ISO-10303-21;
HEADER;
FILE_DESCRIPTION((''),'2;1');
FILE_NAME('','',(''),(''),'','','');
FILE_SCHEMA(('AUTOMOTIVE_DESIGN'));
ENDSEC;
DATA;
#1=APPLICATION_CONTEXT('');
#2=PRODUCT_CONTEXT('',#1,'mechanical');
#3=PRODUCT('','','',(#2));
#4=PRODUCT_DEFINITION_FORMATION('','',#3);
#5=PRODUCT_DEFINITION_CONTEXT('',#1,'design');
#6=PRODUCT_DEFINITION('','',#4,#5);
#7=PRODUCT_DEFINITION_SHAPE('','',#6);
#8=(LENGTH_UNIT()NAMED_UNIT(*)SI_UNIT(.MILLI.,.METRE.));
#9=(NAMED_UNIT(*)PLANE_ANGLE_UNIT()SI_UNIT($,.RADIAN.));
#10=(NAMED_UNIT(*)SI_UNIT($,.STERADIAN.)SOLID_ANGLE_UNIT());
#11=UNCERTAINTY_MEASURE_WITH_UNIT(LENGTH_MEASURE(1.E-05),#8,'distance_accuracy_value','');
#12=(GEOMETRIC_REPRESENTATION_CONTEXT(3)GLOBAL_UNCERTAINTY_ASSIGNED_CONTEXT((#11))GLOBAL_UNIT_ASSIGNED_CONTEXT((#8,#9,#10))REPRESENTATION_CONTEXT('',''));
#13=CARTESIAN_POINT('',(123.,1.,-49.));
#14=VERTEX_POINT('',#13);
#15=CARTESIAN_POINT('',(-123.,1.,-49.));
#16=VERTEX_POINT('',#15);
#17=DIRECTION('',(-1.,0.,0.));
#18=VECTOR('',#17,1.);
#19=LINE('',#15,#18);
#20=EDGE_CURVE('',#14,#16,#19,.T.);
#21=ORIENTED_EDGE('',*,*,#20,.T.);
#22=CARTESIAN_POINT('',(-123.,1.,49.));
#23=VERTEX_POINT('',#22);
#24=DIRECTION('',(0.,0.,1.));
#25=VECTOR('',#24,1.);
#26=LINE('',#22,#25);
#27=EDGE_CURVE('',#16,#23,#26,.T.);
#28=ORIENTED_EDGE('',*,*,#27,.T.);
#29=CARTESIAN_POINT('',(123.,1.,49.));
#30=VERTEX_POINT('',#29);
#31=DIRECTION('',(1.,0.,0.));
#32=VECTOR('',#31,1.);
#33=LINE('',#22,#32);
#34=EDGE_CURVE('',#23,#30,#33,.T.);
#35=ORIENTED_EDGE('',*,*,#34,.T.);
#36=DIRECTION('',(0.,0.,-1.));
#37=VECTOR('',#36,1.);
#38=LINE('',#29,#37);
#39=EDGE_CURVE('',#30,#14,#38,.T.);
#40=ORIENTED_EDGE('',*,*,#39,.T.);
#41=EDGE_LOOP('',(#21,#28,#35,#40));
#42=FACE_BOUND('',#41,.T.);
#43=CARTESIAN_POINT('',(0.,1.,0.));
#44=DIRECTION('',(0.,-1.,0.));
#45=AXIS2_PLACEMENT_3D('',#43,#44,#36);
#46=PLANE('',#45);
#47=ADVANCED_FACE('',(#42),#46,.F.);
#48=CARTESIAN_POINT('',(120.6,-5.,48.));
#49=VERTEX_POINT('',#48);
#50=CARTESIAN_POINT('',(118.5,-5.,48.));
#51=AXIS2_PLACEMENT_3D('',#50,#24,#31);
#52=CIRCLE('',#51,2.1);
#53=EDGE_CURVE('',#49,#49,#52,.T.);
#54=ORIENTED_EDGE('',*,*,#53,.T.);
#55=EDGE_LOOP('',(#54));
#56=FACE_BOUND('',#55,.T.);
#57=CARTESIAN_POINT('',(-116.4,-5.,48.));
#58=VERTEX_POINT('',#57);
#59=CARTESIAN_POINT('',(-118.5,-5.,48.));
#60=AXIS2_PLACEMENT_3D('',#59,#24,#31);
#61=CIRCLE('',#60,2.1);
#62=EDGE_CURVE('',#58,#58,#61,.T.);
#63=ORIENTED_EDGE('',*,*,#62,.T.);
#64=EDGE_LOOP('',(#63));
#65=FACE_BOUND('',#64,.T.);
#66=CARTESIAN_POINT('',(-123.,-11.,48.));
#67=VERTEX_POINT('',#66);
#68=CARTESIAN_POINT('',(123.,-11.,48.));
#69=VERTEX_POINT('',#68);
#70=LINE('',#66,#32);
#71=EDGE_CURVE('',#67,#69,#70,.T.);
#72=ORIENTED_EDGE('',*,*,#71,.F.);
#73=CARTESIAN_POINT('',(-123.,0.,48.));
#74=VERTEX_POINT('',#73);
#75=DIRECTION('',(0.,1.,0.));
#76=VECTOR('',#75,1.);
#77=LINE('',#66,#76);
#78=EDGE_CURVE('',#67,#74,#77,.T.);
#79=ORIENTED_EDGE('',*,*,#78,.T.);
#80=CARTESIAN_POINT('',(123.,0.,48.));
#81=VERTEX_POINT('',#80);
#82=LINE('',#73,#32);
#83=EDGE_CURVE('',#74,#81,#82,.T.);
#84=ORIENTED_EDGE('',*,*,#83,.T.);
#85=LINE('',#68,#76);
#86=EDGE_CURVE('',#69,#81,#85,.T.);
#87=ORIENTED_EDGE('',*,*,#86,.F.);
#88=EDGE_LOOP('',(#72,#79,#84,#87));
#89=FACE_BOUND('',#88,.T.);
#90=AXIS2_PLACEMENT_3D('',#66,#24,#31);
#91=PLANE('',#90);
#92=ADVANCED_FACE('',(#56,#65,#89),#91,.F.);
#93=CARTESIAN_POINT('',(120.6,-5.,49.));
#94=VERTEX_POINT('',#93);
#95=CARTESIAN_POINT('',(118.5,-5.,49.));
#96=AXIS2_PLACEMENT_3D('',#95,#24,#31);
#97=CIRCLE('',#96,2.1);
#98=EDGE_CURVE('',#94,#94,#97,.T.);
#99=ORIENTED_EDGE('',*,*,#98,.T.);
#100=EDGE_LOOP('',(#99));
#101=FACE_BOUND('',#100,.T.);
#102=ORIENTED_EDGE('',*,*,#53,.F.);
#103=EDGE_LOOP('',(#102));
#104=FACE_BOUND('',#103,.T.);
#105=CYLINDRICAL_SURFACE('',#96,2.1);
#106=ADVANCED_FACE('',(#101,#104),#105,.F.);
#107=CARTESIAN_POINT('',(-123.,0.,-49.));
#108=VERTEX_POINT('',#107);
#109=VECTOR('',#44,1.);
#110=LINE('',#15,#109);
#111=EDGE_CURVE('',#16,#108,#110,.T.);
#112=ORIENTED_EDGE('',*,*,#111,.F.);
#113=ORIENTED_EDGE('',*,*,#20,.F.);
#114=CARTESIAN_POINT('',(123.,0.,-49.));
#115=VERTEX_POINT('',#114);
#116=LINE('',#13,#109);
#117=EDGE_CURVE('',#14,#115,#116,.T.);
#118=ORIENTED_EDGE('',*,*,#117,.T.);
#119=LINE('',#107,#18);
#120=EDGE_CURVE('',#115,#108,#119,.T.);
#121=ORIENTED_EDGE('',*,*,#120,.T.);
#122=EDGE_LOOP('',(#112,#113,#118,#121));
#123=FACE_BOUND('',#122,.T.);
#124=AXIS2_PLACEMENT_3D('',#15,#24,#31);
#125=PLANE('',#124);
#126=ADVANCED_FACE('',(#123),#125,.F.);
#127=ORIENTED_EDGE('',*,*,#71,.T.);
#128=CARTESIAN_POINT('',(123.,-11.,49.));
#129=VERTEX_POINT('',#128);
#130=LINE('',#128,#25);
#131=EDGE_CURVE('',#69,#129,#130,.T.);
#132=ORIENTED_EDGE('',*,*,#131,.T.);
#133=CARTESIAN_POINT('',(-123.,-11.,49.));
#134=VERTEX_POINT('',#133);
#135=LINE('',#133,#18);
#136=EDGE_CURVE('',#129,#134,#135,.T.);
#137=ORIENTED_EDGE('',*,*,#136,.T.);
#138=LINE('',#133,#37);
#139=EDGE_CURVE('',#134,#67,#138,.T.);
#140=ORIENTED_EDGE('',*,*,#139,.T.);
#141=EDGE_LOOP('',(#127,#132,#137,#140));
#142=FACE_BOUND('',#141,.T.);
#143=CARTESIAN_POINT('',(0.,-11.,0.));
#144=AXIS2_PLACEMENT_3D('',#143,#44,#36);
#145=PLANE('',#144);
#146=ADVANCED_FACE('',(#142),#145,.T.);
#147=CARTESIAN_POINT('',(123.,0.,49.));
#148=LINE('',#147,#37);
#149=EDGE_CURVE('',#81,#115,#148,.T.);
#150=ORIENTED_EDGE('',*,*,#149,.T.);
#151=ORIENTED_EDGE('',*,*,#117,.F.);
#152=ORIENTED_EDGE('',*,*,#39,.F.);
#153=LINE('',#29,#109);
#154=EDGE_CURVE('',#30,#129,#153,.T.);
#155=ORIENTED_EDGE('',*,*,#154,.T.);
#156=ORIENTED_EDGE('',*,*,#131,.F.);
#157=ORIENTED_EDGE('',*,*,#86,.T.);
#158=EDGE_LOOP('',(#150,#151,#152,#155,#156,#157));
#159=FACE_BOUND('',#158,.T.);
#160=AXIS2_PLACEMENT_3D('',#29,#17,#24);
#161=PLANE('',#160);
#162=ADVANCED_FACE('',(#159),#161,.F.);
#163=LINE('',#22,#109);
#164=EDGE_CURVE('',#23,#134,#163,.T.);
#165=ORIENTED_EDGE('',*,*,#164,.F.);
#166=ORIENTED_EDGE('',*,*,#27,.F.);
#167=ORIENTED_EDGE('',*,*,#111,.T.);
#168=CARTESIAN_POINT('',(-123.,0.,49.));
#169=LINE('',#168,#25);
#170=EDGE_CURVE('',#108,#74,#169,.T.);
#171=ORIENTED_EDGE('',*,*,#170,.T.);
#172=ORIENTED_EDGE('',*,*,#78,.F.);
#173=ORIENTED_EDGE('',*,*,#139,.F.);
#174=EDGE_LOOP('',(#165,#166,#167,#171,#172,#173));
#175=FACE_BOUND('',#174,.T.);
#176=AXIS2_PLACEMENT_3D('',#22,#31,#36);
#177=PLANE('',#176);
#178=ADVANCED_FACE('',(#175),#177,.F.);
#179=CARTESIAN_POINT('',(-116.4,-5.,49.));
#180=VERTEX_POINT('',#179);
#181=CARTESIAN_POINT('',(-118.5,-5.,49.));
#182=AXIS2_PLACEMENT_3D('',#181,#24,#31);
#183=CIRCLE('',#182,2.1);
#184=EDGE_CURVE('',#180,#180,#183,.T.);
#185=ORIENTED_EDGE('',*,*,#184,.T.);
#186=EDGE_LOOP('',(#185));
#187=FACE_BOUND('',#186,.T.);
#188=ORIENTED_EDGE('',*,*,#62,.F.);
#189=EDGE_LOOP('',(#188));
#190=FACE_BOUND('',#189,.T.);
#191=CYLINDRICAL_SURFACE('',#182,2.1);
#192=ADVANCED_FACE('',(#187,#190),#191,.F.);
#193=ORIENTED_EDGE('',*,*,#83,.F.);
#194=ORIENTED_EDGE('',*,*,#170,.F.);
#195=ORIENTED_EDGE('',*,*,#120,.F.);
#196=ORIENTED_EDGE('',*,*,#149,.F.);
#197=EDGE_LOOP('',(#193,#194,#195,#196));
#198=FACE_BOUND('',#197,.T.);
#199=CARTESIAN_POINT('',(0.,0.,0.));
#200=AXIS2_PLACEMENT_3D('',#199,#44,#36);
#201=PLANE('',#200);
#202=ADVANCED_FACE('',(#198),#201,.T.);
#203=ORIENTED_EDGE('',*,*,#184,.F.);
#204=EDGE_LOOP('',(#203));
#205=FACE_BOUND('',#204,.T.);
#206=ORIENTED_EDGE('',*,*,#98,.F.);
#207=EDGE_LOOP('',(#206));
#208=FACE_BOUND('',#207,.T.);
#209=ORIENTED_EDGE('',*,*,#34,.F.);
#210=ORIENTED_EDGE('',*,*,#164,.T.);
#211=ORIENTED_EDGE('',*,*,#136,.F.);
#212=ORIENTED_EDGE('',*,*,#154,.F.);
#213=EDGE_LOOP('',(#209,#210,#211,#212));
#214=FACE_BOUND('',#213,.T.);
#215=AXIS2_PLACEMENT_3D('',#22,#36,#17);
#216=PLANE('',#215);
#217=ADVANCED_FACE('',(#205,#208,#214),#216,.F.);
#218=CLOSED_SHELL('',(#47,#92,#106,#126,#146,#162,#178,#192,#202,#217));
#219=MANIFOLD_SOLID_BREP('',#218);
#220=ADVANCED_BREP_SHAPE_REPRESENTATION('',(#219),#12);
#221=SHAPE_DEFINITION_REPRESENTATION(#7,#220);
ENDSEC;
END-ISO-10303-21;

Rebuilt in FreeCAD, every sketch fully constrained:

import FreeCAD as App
import Part
import Sketcher
Q = App.Units.Quantity


def add_polygon(sketch, points):
    """Adds a closed chain of lines whose ends are joined by coincident constraints."""
    first, n = sketch.GeometryCount, len(points)
    for a, b in zip(points, points[1:] + points[:1]):
        sketch.addGeometry(Part.LineSegment(App.Vector(*a, 0), App.Vector(*b, 0)), False)
    for i in range(n):
        sketch.addConstraint(Sketcher.Constraint("Coincident", first + i, 2, first + (i + 1) % n, 1))

doc = App.newDocument("Part")
body = doc.addObject("PartDesign::Body", "Body")

# Sketch on XZ plane
sketch1 = body.newObject("Sketcher::SketchObject", "Sketch")
sketch1.AttachmentSupport = (doc.getObject("XZ_Plane"), [""])
sketch1.MapMode = "FlatFace"
add_polygon(sketch1, [(-123, -49), (-123, 49), (123, 49), (123, -49)])  # lines 0-3
sketch1.addConstraint([
    Sketcher.Constraint("Vertical", 0),
    Sketcher.Constraint("Horizontal", 1),
    Sketcher.Constraint("Vertical", 2),
    Sketcher.Constraint("Horizontal", 3),
    Sketcher.Constraint("Symmetric", 0, 2, 2, 2, -1, 1),
    Sketcher.Constraint("DistanceX", 1, 1, 1, 2, Q("246 mm")),
    Sketcher.Constraint("DistanceY", 0, 1, 0, 2, Q("98 mm")),
])
pad1 = body.newObject("PartDesign::Pad", "Pad")
pad1.Profile = sketch1
pad1.Length = 1
pad1.Reversed = True

# Sketch on XZ plane
sketch2 = body.newObject("Sketcher::SketchObject", "Sketch001")
sketch2.AttachmentSupport = (doc.getObject("XZ_Plane"), [""])
sketch2.MapMode = "FlatFace"
add_polygon(sketch2, [(-123, 49), (-123, 48), (123, 48), (123, 49)])  # lines 0-3
sketch2.addConstraint([
    Sketcher.Constraint("Vertical", 0),
    Sketcher.Constraint("Horizontal", 1),
    Sketcher.Constraint("Vertical", 2),
    Sketcher.Constraint("Horizontal", 3),
    Sketcher.Constraint("DistanceX", 1, 1, 1, 2, Q("246 mm")),
    Sketcher.Constraint("DistanceY", 0, 2, 0, 1, Q("1 mm")),
    Sketcher.Constraint("DistanceX", 0, 2, -1, 1, Q("123 mm")),
    Sketcher.Constraint("DistanceY", -1, 1, 0, 2, Q("48 mm")),
])
pad2 = body.newObject("PartDesign::Pad", "Pad001")
pad2.Profile = sketch2
pad2.Length = 11

# Sketch on XY plane
sketch3 = body.newObject("Sketcher::SketchObject", "Sketch002")
sketch3.AttachmentSupport = (doc.getObject("XY_Plane"), [""])
sketch3.MapMode = "FlatFace"
sketch3.AttachmentOffset = App.Placement(App.Vector(0, 0, 49), App.Rotation())
sketch3.addGeometry([
    Part.Circle(App.Vector(118.5, -5, 0), App.Vector(0, 0, 1), 2.1),
    Part.Circle(App.Vector(-118.5, -5, 0), App.Vector(0, 0, 1), 2.1),
], False)
sketch3.addConstraint([
    Sketcher.Constraint("Equal", 0, 1),
    Sketcher.Constraint("Symmetric", 0, 3, 1, 3, -2),
    Sketcher.Constraint("Diameter", 0, Q("4.2 mm")),
    Sketcher.Constraint("DistanceY", 0, 3, -1, 1, Q("5 mm")),
    Sketcher.Constraint("DistanceX", 1, 3, 0, 3, Q("237 mm")),
])
doc.recompute()
hole = body.newObject("PartDesign::Hole", "Hole")
hole.Profile = sketch3
hole.ThreadType = "None"
hole.Diameter = 4.2
hole.DepthType = "ThroughAll"

doc.recompute()
